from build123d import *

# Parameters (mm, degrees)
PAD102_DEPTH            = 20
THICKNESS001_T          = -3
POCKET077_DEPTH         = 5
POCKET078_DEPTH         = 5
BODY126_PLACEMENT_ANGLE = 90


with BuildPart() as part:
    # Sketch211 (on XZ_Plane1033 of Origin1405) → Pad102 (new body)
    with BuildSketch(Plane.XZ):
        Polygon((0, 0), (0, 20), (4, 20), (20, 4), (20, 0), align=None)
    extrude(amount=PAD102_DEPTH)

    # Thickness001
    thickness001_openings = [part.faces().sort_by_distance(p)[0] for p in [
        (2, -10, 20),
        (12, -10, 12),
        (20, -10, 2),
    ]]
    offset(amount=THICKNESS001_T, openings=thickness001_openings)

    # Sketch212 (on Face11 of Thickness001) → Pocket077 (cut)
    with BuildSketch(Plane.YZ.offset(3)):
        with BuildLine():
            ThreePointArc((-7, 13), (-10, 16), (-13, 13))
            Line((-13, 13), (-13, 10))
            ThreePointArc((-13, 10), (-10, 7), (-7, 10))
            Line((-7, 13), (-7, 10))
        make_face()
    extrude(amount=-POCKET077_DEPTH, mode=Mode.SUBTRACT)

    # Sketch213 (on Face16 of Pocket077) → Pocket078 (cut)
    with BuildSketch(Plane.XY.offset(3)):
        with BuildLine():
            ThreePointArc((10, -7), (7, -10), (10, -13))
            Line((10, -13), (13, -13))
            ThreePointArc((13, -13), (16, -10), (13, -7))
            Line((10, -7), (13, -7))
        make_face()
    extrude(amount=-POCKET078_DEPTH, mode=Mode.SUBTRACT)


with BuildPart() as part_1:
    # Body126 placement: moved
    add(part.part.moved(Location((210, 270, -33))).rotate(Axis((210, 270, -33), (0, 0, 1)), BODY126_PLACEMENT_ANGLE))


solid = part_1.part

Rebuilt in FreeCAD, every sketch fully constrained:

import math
import FreeCAD as App
import Part
import Sketcher
from FreeCAD import Vector
Q = App.Units.Quantity


def faces_at(feature, points):
    """Names of the faces that lie closest to the given points."""
    faces = feature.Shape.Faces
    near = lambda p: min(range(len(faces)), key=lambda i: faces[i].distToShape(Part.Vertex(*p))[0])
    return sorted({f"Face{near(p) + 1}" for p in points})


def add_polygon(sketch, points):
    """Adds a closed chain of lines whose ends are joined by coincident constraints."""
    first, n = sketch.GeometryCount, len(points)
    for a, b in zip(points, points[1:] + points[:1]):
        sketch.addGeometry(Part.LineSegment(App.Vector(*a, 0), App.Vector(*b, 0)), False)
    for i in range(n):
        sketch.addConstraint(Sketcher.Constraint("Coincident", first + i, 2, first + (i + 1) % n, 1))

doc = App.newDocument("Part")
body = doc.addObject("PartDesign::Body", "Body")

# Sketch on XZ plane
sketch1 = body.newObject("Sketcher::SketchObject", "Sketch")
sketch1.AttachmentSupport = (doc.getObject("XZ_Plane"), [""])
sketch1.MapMode = "FlatFace"
add_polygon(sketch1, [(0, 20), (0, 0), (20, 0), (20, 4), (4, 20)])  # lines 0-4
sketch1.addConstraint(Sketcher.Constraint("Vertical", 0))
sketch1.addConstraint(Sketcher.Constraint("Horizontal", 1))
sketch1.addConstraint(Sketcher.Constraint("Vertical", 2))
sketch1.addConstraint(Sketcher.Constraint("Horizontal", 4))
sketch1.addConstraint(Sketcher.Constraint("Coincident", 0, 2, -1, 1))
sketch1.addConstraint(Sketcher.Constraint("Equal", 1, 0))
sketch1.addConstraint(Sketcher.Constraint("Equal", 4, 2))
sketch1.addConstraint(Sketcher.Constraint("DistanceX", 1, 1, 1, 2, Q("20 mm")))
sketch1.addConstraint(Sketcher.Constraint("DistanceX", 4, 2, 4, 1, Q("4 mm")))
pad1 = body.newObject("PartDesign::Pad", "Pad")
pad1.Profile = sketch1
pad1.Length = 20
doc.recompute()

thickness = body.newObject("PartDesign::Thickness", "Thickness")
thickness.Base = (pad1, faces_at(pad1, [(2, -10, 20), (12, -10, 12), (20, -10, 2)]))
thickness.Value = 3
thickness.Reversed = True
thickness.Join = "Arc"

# Sketch on YZ plane
sketch2 = body.newObject("Sketcher::SketchObject", "Sketch001")
sketch2.AttachmentSupport = (doc.getObject("YZ_Plane"), [""])
sketch2.MapMode = "FlatFace"
sketch2.AttachmentOffset = App.Placement(Vector(0, 0, 3), App.Rotation())
sketch2.addGeometry(Part.ArcOfCircle(Part.Circle(Vector(-10, 13, 0), Vector(0, 0, 1), 3), math.radians(0), math.radians(180)), False)
sketch2.addGeometry(Part.LineSegment(Vector(-13, 13, 0), Vector(-13, 10, 0)), False)
sketch2.addGeometry(Part.ArcOfCircle(Part.Circle(Vector(-10, 10, 0), Vector(0, 0, 1), 3), math.radians(180), math.radians(360)), False)
sketch2.addGeometry(Part.LineSegment(Vector(-7, 10, 0), Vector(-7, 13, 0)), False)
sketch2.addConstraint(Sketcher.Constraint("Tangent", 0, 2, 1, 1))
sketch2.addConstraint(Sketcher.Constraint("Tangent", 1, 2, 2, 1))
sketch2.addConstraint(Sketcher.Constraint("Tangent", 2, 2, 3, 1))
sketch2.addConstraint(Sketcher.Constraint("Tangent", 3, 2, 0, 1))
sketch2.addConstraint(Sketcher.Constraint("Vertical", 1))
sketch2.addConstraint(Sketcher.Constraint("Vertical", 3))
sketch2.addConstraint(Sketcher.Constraint("Radius", 0, Q("3 mm")))
sketch2.addConstraint(Sketcher.Constraint("DistanceY", 1, 2, 1, 1, Q("3 mm")))
sketch2.addConstraint(Sketcher.Constraint("DistanceX", 0, 3, -1, 1, Q("10 mm")))
sketch2.addConstraint(Sketcher.Constraint("DistanceY", -1, 1, 0, 3, Q("13 mm")))
pocket1 = body.newObject("PartDesign::Pocket", "Pocket")
pocket1.Profile = sketch2
pocket1.Length = 5

# Sketch on XY plane
sketch3 = body.newObject("Sketcher::SketchObject", "Sketch002")
sketch3.AttachmentSupport = (doc.getObject("XY_Plane"), [""])
sketch3.MapMode = "FlatFace"
sketch3.AttachmentOffset = App.Placement(Vector(0, 0, 3), App.Rotation())
sketch3.addGeometry(Part.ArcOfCircle(Part.Circle(Vector(10, -10, 0), Vector(0, 0, 1), 3), math.radians(90), math.radians(270)), False)
sketch3.addGeometry(Part.LineSegment(Vector(10, -13, 0), Vector(13, -13, 0)), False)
sketch3.addGeometry(Part.ArcOfCircle(Part.Circle(Vector(13, -10, 0), Vector(0, 0, 1), 3), math.radians(-90), math.radians(90)), False)
sketch3.addGeometry(Part.LineSegment(Vector(13, -7, 0), Vector(10, -7, 0)), False)
sketch3.addConstraint(Sketcher.Constraint("Tangent", 0, 2, 1, 1))
sketch3.addConstraint(Sketcher.Constraint("Tangent", 1, 2, 2, 1))
sketch3.addConstraint(Sketcher.Constraint("Tangent", 2, 2, 3, 1))
sketch3.addConstraint(Sketcher.Constraint("Tangent", 3, 2, 0, 1))
sketch3.addConstraint(Sketcher.Constraint("Horizontal", 1))
sketch3.addConstraint(Sketcher.Constraint("Horizontal", 3))
sketch3.addConstraint(Sketcher.Constraint("Radius", 0, Q("3 mm")))
sketch3.addConstraint(Sketcher.Constraint("DistanceX", 1, 1, 1, 2, Q("3 mm")))
sketch3.addConstraint(Sketcher.Constraint("DistanceX", -1, 1, 0, 3, Q("10 mm")))
sketch3.addConstraint(Sketcher.Constraint("DistanceY", 0, 3, -1, 1, Q("10 mm")))
pocket2 = body.newObject("PartDesign::Pocket", "Pocket001")
pocket2.Profile = sketch3
pocket2.Length = 5
body2 = doc.addObject("PartDesign::Body", "Body001")
doc.recompute()

body.Placement = App.Placement(Vector(210, 270, -33), App.Rotation(Vector(0, 0, 1), 90))
boolean = body2.newObject("PartDesign::Boolean", "Boolean")
boolean.Type = "Fuse"
boolean.addObjects([body])

doc.recompute()
